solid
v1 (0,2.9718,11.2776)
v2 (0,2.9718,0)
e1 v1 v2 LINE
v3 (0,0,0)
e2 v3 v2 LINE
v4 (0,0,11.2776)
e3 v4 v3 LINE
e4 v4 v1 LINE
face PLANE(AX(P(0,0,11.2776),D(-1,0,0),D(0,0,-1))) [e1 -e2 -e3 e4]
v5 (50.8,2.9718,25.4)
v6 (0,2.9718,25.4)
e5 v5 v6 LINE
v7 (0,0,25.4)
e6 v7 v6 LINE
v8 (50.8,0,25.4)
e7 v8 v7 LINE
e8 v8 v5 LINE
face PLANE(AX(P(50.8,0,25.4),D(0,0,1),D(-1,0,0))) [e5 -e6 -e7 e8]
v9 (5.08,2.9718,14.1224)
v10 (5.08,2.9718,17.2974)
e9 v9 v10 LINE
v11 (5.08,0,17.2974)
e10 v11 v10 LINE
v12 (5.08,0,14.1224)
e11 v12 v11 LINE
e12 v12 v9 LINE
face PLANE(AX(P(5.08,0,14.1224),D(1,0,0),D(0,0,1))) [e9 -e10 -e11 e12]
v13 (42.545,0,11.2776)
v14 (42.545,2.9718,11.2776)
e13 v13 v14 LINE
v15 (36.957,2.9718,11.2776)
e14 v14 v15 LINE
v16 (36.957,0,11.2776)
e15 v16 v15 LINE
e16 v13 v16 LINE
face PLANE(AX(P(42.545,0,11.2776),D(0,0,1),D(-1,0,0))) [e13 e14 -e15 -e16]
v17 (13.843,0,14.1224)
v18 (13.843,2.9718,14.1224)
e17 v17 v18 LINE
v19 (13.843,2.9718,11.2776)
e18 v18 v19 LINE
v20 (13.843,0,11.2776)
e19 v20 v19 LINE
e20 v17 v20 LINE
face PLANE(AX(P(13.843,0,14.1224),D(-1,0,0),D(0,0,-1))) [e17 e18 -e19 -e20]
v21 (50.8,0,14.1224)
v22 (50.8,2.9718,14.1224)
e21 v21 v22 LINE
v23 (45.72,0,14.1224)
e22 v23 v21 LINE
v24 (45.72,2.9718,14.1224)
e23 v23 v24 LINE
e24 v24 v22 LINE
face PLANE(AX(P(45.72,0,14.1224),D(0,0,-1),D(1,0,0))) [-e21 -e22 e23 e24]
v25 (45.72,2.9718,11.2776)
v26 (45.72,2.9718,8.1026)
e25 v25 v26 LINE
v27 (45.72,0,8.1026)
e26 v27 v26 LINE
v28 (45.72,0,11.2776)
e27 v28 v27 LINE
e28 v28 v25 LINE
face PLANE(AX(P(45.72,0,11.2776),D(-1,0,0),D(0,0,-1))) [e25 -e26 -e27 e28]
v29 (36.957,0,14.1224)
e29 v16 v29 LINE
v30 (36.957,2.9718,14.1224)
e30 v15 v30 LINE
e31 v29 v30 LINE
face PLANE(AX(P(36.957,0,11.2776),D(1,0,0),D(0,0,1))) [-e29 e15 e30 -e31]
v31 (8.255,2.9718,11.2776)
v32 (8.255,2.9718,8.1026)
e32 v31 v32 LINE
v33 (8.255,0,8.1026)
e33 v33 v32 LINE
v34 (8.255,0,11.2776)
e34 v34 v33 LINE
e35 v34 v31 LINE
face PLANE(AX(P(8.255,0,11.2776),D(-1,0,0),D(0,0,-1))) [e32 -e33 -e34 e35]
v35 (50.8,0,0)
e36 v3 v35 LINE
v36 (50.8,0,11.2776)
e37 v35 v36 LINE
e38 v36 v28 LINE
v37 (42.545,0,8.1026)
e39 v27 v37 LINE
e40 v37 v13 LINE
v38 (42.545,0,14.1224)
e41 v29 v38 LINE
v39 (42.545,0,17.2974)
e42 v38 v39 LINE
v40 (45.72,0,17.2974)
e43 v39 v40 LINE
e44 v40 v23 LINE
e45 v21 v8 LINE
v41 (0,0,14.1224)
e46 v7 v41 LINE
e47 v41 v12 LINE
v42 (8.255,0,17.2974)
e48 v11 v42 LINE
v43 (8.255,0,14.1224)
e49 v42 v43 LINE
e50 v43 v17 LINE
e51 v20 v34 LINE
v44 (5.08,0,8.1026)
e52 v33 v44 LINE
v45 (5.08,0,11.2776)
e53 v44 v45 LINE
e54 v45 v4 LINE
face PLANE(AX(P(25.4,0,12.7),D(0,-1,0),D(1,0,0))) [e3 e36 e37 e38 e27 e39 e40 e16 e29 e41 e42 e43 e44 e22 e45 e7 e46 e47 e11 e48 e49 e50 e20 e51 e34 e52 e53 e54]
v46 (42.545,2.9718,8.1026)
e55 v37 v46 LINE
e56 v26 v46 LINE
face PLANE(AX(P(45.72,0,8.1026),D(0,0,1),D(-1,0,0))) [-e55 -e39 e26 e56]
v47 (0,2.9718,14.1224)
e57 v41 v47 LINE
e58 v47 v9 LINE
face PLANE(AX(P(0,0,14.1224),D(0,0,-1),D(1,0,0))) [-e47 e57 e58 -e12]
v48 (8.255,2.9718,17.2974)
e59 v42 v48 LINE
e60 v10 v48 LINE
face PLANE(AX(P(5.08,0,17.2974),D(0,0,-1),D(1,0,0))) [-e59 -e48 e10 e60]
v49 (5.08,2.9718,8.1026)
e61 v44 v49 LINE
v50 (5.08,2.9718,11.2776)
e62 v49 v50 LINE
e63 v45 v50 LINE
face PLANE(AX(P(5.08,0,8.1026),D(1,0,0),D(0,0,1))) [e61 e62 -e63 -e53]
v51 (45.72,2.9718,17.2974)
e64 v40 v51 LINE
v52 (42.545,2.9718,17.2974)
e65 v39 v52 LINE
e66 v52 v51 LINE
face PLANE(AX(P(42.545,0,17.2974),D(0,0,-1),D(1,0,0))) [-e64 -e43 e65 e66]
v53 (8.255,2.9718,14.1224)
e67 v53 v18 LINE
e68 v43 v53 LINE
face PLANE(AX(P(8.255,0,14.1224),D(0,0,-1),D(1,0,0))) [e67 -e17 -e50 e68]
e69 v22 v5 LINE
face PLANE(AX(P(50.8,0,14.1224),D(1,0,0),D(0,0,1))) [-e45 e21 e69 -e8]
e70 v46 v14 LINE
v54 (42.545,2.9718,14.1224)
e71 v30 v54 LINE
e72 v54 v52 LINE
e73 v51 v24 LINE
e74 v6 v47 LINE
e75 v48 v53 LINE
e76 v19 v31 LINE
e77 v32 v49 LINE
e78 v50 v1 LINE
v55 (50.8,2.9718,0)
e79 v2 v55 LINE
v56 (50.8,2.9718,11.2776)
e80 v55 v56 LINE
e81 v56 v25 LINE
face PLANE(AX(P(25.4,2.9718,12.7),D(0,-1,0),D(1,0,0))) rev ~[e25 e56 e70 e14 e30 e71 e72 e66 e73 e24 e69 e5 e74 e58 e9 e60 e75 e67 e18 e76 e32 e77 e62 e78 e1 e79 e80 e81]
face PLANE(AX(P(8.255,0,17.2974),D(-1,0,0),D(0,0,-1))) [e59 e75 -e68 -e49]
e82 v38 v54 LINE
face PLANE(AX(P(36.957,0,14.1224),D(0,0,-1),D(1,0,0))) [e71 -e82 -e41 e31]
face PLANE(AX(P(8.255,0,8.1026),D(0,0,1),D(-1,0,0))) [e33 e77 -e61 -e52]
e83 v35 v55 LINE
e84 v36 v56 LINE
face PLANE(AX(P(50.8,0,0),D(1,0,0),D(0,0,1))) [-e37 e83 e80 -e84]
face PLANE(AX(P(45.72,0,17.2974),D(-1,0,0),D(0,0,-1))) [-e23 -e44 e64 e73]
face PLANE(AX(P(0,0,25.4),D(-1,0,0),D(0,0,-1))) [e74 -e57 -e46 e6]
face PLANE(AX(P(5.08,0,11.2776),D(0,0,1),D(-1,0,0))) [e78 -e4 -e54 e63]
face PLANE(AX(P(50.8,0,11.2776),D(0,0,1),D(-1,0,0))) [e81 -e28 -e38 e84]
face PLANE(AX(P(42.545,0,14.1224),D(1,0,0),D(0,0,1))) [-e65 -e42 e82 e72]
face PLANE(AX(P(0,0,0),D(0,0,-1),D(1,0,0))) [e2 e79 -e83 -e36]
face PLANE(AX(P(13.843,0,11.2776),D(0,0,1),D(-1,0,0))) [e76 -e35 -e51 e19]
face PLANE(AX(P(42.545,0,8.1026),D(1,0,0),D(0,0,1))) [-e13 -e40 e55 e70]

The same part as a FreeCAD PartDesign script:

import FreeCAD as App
import Part
import Sketcher
Q = App.Units.Quantity


def add_polygon(sketch, points):
    """Adds a closed chain of lines whose ends are joined by coincident constraints."""
    first, n = sketch.GeometryCount, len(points)
    for a, b in zip(points, points[1:] + points[:1]):
        sketch.addGeometry(Part.LineSegment(App.Vector(*a, 0), App.Vector(*b, 0)), False)
    for i in range(n):
        sketch.addConstraint(Sketcher.Constraint("Coincident", first + i, 2, first + (i + 1) % n, 1))

doc = App.newDocument("Part")
body = doc.addObject("PartDesign::Body", "Body")

# Sketch on XZ plane
sketch1 = body.newObject("Sketcher::SketchObject", "Sketch")
sketch1.AttachmentSupport = (doc.getObject("XZ_Plane"), [""])
sketch1.MapMode = "FlatFace"
add_polygon(sketch1, [(0, 11.3), (0, 0), (50.8, 0), (50.8, 11.3), (45.7, 11.3), (45.7, 8.1), (42.5, 8.1), (42.5, 11.3), (37, 11.3), (37, 14.1), (42.5, 14.1), (42.5, 17.3), (45.7, 17.3), (45.7, 14.1), (50.8, 14.1), (50.8, 25.4), (0, 25.4), (0, 14.1), (5.1, 14.1), (5.1, 17.3), (8.3, 17.3), (8.3, 14.1), (13.8, 14.1), (13.8, 11.3), (8.3, 11.3), (8.3, 8.1), (5.1, 8.1), (5.1, 11.3)])  # lines 0-27
sketch1.addConstraint(Sketcher.Constraint("Vertical", 0))
sketch1.addConstraint(Sketcher.Constraint("Horizontal", 1))
sketch1.addConstraint(Sketcher.Constraint("Vertical", 2))
sketch1.addConstraint(Sketcher.Constraint("Horizontal", 3))
sketch1.addConstraint(Sketcher.Constraint("Vertical", 4))
sketch1.addConstraint(Sketcher.Constraint("Horizontal", 5))
sketch1.addConstraint(Sketcher.Constraint("Vertical", 6))
sketch1.addConstraint(Sketcher.Constraint("Horizontal", 7))
sketch1.addConstraint(Sketcher.Constraint("Vertical", 8))
sketch1.addConstraint(Sketcher.Constraint("Horizontal", 9))
sketch1.addConstraint(Sketcher.Constraint("Vertical", 10))
sketch1.addConstraint(Sketcher.Constraint("Horizontal", 11))
sketch1.addConstraint(Sketcher.Constraint("Vertical", 12))
sketch1.addConstraint(Sketcher.Constraint("Horizontal", 13))
sketch1.addConstraint(Sketcher.Constraint("Vertical", 14))
sketch1.addConstraint(Sketcher.Constraint("Horizontal", 15))
sketch1.addConstraint(Sketcher.Constraint("Vertical", 16))
sketch1.addConstraint(Sketcher.Constraint("Horizontal", 17))
sketch1.addConstraint(Sketcher.Constraint("Vertical", 18))
sketch1.addConstraint(Sketcher.Constraint("Horizontal", 19))
sketch1.addConstraint(Sketcher.Constraint("Vertical", 20))
sketch1.addConstraint(Sketcher.Constraint("Horizontal", 21))
sketch1.addConstraint(Sketcher.Constraint("Vertical", 22))
sketch1.addConstraint(Sketcher.Constraint("Horizontal", 23))
sketch1.addConstraint(Sketcher.Constraint("Vertical", 24))
sketch1.addConstraint(Sketcher.Constraint("Horizontal", 25))
sketch1.addConstraint(Sketcher.Constraint("Vertical", 26))
sketch1.addConstraint(Sketcher.Constraint("Horizontal", 27))
sketch1.addConstraint(Sketcher.Constraint("Coincident", 0, 2, -1, 1))
sketch1.addConstraint(Sketcher.Constraint("PointOnObject", 15, 2, -2))
sketch1.addConstraint(Sketcher.Constraint("Horizontal", 3, 2, 6, 2))
sketch1.addConstraint(Sketcher.Constraint("Horizontal", 9, 2, 12, 2))
sketch1.addConstraint(Sketcher.Constraint("Horizontal", 13, 2, 16, 2))
sketch1.addConstraint(Sketcher.Constraint("Horizontal", 11, 2, 18, 2))
sketch1.addConstraint(Sketcher.Constraint("Horizontal", 17, 2, 20, 2))
sketch1.addConstraint(Sketcher.Constraint("Horizontal", 7, 2, 22, 2))
sketch1.addConstraint(Sketcher.Constraint("Horizontal", 5, 2, 24, 2))
sketch1.addConstraint(Sketcher.Constraint("Horizontal", 23, 2, 26, 2))
sketch1.addConstraint(Sketcher.Constraint("Vertical", 6, 2, 9, 2))
sketch1.addConstraint(Sketcher.Constraint("Vertical", 4, 2, 11, 2))
sketch1.addConstraint(Sketcher.Constraint("Vertical", 2, 2, 13, 2))
sketch1.addConstraint(Sketcher.Constraint("Vertical", 20, 2, 23, 2))
sketch1.addConstraint(Sketcher.Constraint("Vertical", 18, 2, 25, 2))
sketch1.addConstraint(Sketcher.Constraint("Equal", 13, 17))
sketch1.addConstraint(Sketcher.Constraint("Equal", 11, 19))
sketch1.addConstraint(Sketcher.Constraint("Equal", 9, 21))
sketch1.addConstraint(Sketcher.Constraint("Equal", 25, 4))
sketch1.addConstraint(Sketcher.Constraint("Equal", 6, 10))
sketch1.addConstraint(Sketcher.Constraint("Equal", 2, 14))
sketch1.addConstraint(Sketcher.Constraint("DistanceX", 1, 1, 1, 2, Q("2 in")))
sketch1.addConstraint(Sketcher.Constraint("DistanceX", 3, 2, 3, 1, Q("0.2 in")))
sketch1.addConstraint(Sketcher.Constraint("DistanceY", -1, 1, 14, 2, Q("1 in")))
sketch1.addConstraint(Sketcher.Constraint("DistanceX", 7, 2, 7, 1, Q("0.22 in")))
sketch1.addConstraint(Sketcher.Constraint("DistanceX", 5, 2, 5, 1, Q("0.125 in")))
sketch1.addConstraint(Sketcher.Constraint("DistanceY", 0, 2, 0, 1, Q("0.444 in")))
pad1 = body.newObject("PartDesign::Pad", "Pad")
pad1.Profile = sketch1
pad1.Length = Q("0.117 in")
pad1.Reversed = True

doc.recompute()
